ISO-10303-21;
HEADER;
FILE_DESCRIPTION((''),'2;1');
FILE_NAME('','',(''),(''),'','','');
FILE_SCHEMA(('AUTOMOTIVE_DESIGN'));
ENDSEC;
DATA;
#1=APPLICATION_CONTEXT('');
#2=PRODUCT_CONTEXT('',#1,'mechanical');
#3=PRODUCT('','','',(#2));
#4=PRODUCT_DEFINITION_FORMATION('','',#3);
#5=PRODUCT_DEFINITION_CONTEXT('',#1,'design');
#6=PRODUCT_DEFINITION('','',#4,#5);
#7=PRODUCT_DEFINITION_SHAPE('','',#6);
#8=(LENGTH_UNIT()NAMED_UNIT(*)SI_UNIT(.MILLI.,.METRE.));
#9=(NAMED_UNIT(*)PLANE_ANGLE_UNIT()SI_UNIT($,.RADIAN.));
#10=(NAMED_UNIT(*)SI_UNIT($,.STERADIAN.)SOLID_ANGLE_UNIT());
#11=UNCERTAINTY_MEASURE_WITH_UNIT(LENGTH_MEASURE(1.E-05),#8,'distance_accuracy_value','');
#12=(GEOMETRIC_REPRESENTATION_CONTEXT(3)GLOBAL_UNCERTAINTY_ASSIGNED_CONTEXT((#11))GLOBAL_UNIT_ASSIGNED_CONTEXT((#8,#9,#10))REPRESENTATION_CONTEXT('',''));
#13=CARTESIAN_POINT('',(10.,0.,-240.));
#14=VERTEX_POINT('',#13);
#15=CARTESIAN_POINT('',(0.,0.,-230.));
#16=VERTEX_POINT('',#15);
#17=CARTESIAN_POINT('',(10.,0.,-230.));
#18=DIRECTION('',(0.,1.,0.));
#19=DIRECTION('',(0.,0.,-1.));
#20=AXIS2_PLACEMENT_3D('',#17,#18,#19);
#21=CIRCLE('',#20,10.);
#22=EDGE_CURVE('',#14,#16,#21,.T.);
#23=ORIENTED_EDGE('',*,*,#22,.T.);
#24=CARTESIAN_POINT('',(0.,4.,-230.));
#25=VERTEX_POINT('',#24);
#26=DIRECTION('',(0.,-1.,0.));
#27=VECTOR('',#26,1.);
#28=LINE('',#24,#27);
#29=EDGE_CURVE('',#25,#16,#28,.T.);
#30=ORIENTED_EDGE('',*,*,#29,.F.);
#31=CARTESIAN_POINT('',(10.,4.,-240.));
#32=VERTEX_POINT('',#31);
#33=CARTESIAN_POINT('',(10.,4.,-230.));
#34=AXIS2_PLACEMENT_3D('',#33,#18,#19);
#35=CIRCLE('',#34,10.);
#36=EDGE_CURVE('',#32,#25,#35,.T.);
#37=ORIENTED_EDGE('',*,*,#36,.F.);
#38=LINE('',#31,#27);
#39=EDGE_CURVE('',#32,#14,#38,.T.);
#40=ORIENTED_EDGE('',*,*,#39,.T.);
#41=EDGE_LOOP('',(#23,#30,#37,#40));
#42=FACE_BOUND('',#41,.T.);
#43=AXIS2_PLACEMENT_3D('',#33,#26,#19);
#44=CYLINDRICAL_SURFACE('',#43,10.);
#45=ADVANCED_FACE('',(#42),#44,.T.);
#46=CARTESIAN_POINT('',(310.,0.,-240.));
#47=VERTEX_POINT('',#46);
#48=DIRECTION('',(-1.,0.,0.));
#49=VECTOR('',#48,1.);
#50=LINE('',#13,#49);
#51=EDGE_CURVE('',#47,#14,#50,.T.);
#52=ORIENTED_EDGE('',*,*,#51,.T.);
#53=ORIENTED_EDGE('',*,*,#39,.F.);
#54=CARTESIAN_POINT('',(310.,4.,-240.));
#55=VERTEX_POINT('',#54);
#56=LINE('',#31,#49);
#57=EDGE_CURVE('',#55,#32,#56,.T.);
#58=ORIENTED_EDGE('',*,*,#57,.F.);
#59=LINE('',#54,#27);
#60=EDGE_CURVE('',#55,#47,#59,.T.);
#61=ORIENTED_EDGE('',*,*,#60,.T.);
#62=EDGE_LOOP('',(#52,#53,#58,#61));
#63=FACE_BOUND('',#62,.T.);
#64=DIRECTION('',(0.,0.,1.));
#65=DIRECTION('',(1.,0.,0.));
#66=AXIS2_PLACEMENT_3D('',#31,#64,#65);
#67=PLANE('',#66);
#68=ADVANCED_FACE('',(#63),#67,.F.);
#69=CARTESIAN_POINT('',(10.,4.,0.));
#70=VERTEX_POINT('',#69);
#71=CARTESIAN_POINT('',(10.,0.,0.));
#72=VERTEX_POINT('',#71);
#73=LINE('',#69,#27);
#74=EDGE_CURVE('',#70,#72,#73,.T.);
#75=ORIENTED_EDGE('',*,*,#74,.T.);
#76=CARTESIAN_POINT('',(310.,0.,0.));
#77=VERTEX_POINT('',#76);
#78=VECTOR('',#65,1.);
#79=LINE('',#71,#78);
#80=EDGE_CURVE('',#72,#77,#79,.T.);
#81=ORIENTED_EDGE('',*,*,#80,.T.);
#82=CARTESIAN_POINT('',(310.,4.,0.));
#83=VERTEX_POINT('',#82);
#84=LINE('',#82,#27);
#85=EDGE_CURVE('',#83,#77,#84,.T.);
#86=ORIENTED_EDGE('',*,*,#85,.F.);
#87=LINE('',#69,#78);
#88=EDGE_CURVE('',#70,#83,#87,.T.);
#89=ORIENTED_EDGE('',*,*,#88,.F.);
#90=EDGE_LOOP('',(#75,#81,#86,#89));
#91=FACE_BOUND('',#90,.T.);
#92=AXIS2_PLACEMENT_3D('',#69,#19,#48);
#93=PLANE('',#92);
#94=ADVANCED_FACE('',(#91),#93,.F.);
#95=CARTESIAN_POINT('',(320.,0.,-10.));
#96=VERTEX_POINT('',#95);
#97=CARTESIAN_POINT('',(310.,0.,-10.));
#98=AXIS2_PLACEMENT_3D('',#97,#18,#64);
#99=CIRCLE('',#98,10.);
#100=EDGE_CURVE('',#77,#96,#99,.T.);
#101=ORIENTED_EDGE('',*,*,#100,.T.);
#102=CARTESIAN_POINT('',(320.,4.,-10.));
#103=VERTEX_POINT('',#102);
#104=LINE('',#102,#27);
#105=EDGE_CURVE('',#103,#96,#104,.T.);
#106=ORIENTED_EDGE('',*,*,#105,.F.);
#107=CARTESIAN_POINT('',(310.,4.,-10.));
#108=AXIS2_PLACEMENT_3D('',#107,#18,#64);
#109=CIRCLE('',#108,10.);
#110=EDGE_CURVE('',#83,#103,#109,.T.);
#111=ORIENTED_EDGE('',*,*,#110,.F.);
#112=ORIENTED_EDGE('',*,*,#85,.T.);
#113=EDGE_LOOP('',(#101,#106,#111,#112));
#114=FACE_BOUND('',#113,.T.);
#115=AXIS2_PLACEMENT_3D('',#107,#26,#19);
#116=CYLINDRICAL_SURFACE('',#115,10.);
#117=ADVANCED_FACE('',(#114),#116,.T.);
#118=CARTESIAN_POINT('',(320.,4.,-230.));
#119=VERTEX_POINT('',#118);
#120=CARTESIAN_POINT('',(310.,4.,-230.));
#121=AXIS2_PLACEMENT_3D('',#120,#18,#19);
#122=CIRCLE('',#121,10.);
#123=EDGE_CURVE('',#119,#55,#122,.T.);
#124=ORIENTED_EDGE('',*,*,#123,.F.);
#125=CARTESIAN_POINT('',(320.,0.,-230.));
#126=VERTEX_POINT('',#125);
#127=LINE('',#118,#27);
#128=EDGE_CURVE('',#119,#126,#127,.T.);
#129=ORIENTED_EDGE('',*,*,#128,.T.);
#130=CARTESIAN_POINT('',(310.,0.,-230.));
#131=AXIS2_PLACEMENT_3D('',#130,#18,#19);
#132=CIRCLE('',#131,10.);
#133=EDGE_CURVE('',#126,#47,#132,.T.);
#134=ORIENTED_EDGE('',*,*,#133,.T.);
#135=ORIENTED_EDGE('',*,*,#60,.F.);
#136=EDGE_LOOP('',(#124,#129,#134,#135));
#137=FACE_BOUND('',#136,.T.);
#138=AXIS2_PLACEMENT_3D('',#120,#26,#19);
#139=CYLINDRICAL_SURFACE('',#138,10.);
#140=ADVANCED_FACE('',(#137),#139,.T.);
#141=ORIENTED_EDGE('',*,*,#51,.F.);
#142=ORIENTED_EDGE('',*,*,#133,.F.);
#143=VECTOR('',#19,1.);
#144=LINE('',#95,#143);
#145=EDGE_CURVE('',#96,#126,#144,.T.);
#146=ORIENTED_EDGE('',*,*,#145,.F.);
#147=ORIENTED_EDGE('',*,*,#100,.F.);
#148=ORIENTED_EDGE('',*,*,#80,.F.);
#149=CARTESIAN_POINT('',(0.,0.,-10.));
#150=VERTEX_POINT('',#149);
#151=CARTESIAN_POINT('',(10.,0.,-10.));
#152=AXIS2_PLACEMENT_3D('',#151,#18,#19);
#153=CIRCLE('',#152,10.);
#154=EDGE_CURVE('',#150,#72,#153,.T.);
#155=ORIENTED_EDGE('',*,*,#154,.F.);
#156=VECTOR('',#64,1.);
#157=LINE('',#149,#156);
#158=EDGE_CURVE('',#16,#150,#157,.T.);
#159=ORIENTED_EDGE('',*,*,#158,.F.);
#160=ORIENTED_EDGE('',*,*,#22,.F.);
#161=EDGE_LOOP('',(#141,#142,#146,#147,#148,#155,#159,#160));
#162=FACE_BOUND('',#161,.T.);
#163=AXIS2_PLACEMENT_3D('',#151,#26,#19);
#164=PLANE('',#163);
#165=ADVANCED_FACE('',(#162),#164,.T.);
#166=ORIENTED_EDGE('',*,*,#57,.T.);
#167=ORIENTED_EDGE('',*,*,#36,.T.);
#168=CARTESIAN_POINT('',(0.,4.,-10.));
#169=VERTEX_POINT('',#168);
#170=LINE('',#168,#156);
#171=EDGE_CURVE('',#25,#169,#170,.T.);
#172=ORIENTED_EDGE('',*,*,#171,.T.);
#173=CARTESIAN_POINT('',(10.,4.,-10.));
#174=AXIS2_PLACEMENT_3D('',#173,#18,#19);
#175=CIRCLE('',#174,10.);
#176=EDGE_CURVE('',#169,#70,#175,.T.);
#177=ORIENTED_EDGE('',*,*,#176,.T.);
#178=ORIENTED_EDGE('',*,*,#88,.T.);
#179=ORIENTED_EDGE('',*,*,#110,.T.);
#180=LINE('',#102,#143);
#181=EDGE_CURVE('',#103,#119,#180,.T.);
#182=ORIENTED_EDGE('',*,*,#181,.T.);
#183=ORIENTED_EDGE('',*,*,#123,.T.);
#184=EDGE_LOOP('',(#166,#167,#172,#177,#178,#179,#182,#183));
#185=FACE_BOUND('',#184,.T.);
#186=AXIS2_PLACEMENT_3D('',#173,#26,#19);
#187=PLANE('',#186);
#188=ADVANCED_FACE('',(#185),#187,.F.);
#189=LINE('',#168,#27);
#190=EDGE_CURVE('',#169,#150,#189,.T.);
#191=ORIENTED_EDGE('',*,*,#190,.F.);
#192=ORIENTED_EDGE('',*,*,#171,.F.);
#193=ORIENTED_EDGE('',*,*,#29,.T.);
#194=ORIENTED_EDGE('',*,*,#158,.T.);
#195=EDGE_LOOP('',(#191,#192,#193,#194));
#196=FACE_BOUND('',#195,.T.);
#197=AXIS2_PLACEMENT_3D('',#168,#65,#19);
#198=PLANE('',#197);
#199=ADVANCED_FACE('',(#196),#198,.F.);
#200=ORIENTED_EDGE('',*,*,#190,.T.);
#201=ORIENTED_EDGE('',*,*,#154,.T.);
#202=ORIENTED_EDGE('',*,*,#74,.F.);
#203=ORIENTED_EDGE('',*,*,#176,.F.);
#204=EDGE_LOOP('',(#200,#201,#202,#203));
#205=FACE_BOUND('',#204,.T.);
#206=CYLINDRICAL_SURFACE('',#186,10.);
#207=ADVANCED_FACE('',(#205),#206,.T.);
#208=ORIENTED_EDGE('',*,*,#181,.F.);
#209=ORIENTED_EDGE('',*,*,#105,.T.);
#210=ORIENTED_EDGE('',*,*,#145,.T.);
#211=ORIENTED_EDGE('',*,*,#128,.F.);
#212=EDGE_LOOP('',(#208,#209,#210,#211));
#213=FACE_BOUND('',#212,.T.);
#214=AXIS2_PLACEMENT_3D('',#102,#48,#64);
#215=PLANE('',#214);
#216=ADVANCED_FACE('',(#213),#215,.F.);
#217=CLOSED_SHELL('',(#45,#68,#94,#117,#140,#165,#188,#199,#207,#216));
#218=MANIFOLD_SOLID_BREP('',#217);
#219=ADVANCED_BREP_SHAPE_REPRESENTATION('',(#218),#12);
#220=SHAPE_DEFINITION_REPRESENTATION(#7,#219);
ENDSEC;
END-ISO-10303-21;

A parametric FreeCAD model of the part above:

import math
import FreeCAD as App
import Part
import Sketcher

doc = App.newDocument("Part")
body = doc.addObject("PartDesign::Body", "Body")

# Sketch on XZ plane
sketch1 = body.newObject("Sketcher::SketchObject", "Sketch")
sketch1.AttachmentSupport = (doc.getObject("XZ_Plane"), [""])
sketch1.MapMode = "FlatFace"
sketch1.addGeometry([
    Part.LineSegment(App.Vector(10, 0, 0), App.Vector(310, 0, 0)),  # 0
    Part.ArcOfCircle(Part.Circle(App.Vector(310, -10, 0), App.Vector(0, 0, 1), 10), math.radians(0), math.radians(90)),  # 1
    Part.LineSegment(App.Vector(320, -10, 0), App.Vector(320, -230, 0)),  # 2
    Part.ArcOfCircle(Part.Circle(App.Vector(310, -230, 0), App.Vector(0, 0, 1), 10), math.radians(-90), math.radians(0)),  # 3
    Part.LineSegment(App.Vector(310, -240, 0), App.Vector(10, -240, 0)),  # 4
    Part.ArcOfCircle(Part.Circle(App.Vector(10, -230, 0), App.Vector(0, 0, 1), 10), math.radians(180), math.radians(270)),  # 5
    Part.LineSegment(App.Vector(0, -230, 0), App.Vector(0, -10, 0)),  # 6
    Part.ArcOfCircle(Part.Circle(App.Vector(10, -10, 0), App.Vector(0, 0, 1), 10), math.radians(90), math.radians(180)),  # 7
], False)
sketch1.addConstraint([
    Sketcher.Constraint("Tangent", 0, 2, 1, 2),
    Sketcher.Constraint("Tangent", 1, 1, 2, 1),
    Sketcher.Constraint("Tangent", 2, 2, 3, 2),
    Sketcher.Constraint("Tangent", 3, 1, 4, 1),
    Sketcher.Constraint("Tangent", 4, 2, 5, 2),
    Sketcher.Constraint("Tangent", 5, 1, 6, 1),
    Sketcher.Constraint("Tangent", 6, 2, 7, 2),
    Sketcher.Constraint("Tangent", 7, 1, 0, 1),
    Sketcher.Constraint("Horizontal", 0),
    Sketcher.Constraint("Vertical", 2),
    Sketcher.Constraint("Horizontal", 4),
    Sketcher.Constraint("Vertical", 6),
    Sketcher.Constraint("Equal", 1, 3),
    Sketcher.Constraint("Equal", 3, 5),
    Sketcher.Constraint("Equal", 5, 7),
    Sketcher.Constraint("PointOnObject", 0, 2, -1),
    Sketcher.Constraint("PointOnObject", 5, 1, -2),
    Sketcher.Constraint("Radius", 1, 10.0),
    Sketcher.Constraint("DistanceX", 0, 1, 0, 2, 300.0),
    Sketcher.Constraint("DistanceY", 2, 2, 2, 1, 220.0),
])
pad1 = body.newObject("PartDesign::Pad", "Pad")
pad1.Profile = sketch1
pad1.Length = 4
pad1.Reversed = True

doc.recompute()
